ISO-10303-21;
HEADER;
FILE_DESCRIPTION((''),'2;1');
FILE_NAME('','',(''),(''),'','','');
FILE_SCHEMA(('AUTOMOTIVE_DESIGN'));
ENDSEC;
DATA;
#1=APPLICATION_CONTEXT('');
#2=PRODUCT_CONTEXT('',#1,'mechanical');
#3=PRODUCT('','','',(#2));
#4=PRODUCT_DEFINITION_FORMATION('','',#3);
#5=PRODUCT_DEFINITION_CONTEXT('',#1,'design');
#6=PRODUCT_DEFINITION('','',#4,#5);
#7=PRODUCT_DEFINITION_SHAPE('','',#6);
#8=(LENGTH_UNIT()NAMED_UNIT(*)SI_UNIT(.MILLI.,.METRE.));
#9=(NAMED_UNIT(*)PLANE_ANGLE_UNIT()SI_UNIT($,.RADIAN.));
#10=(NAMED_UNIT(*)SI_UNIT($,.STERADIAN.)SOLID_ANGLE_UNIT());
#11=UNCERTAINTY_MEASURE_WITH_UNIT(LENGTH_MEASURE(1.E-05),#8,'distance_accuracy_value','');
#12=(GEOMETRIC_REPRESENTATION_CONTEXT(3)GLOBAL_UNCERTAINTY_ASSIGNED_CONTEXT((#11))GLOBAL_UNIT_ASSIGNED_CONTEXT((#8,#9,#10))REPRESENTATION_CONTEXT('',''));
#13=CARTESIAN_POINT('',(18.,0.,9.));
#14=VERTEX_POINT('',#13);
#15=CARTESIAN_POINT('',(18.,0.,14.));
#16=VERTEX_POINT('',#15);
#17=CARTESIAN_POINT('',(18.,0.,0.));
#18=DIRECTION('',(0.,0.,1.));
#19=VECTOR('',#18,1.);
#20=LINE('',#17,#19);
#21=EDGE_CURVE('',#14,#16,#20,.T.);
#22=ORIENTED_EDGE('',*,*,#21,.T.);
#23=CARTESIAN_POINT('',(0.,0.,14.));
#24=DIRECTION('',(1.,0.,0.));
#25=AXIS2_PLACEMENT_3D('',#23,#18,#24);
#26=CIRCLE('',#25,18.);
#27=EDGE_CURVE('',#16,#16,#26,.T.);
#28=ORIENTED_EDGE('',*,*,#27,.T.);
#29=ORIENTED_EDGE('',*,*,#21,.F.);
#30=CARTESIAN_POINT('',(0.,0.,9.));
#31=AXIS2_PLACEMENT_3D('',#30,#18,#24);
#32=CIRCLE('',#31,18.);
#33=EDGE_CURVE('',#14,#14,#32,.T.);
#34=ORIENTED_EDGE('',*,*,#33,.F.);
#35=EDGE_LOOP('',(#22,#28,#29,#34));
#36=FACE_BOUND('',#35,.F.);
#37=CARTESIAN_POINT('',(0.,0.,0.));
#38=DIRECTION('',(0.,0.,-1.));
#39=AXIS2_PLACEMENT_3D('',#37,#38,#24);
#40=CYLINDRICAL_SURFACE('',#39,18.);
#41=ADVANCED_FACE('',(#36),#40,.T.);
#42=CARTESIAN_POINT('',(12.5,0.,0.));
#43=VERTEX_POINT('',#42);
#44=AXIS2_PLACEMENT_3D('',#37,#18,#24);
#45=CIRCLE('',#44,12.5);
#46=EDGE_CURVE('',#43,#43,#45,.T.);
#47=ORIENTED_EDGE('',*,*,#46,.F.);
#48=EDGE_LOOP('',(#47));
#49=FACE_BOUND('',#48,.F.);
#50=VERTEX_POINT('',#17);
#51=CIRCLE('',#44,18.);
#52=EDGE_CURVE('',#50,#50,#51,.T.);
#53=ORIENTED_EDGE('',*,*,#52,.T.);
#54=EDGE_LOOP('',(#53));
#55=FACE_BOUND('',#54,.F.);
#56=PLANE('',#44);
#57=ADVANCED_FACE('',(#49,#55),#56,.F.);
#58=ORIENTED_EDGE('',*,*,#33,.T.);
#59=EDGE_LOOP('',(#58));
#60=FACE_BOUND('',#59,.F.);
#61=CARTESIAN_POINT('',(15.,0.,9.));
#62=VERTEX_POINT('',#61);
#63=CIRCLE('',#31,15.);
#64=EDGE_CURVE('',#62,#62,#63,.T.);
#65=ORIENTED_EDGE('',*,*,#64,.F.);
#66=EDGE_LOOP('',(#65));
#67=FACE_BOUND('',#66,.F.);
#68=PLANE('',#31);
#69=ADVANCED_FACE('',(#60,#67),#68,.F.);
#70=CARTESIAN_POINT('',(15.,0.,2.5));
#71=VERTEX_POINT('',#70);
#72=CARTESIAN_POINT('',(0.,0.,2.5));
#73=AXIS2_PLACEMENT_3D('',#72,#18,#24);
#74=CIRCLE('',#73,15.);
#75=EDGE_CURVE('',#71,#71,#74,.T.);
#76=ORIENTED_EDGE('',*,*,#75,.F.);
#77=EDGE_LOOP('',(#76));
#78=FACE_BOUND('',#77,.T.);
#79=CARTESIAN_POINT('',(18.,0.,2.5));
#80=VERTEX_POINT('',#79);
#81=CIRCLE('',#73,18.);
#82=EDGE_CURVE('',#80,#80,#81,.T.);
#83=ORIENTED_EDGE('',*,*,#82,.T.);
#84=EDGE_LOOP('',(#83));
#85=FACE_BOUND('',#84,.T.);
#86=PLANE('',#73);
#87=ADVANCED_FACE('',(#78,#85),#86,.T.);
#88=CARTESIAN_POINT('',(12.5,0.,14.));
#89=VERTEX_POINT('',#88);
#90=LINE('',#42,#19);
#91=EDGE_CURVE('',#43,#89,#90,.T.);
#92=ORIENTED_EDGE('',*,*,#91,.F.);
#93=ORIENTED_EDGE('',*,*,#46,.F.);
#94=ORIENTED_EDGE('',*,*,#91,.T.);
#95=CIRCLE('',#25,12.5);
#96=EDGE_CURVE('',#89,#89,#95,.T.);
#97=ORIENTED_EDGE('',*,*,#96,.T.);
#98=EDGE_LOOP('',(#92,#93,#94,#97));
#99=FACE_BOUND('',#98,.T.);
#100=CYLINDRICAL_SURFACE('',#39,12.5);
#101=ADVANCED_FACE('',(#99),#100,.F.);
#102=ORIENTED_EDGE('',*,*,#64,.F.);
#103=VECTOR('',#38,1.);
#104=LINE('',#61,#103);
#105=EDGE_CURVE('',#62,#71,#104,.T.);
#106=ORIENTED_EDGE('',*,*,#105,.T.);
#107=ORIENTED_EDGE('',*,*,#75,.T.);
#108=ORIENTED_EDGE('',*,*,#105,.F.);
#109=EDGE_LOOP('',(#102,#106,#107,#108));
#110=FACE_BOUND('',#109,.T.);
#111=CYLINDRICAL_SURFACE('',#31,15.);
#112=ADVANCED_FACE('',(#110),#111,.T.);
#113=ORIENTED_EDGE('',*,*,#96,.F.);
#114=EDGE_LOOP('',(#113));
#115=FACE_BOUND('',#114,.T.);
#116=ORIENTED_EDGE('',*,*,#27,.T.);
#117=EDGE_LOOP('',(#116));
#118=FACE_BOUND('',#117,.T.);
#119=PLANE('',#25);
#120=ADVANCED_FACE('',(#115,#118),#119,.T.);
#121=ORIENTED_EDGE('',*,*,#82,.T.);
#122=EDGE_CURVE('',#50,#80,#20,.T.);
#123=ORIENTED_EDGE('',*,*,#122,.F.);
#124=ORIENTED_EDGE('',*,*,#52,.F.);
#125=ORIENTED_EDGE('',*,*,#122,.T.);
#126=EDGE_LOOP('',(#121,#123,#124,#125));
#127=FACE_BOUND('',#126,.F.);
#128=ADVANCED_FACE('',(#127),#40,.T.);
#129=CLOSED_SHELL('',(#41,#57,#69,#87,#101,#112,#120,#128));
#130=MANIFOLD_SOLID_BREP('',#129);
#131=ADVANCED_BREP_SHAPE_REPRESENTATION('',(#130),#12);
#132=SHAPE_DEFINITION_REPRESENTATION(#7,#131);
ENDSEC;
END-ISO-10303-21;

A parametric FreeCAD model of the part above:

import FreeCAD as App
import Part
import Sketcher

doc = App.newDocument("Part")
body = doc.addObject("PartDesign::Body", "Body")

# Sketch on XY plane
sketch1 = body.newObject("Sketcher::SketchObject", "Sketch")
sketch1.AttachmentSupport = (doc.getObject("XY_Plane"), [""])
sketch1.MapMode = "FlatFace"
sketch1.addGeometry(Part.Circle(App.Vector(0, 0, 0), App.Vector(0, 0, 1), 18), False)
sketch1.addGeometry(Part.Circle(App.Vector(0, 0, 0), App.Vector(0, 0, 1), 12.5), False)
sketch1.addConstraint(Sketcher.Constraint("Coincident", 0, 3, -1, 1))
sketch1.addConstraint(Sketcher.Constraint("Coincident", 1, 3, -1, 1))
sketch1.addConstraint(Sketcher.Constraint("Diameter", 0, 36.0))
sketch1.addConstraint(Sketcher.Constraint("Diameter", 1, 25.0))
pad1 = body.newObject("PartDesign::Pad", "Pad")
pad1.Profile = sketch1
pad1.Length = 14

# Sketch on XY plane
sketch2 = body.newObject("Sketcher::SketchObject", "Sketch001")
sketch2.AttachmentSupport = (doc.getObject("XY_Plane"), [""])
sketch2.MapMode = "FlatFace"
sketch2.AttachmentOffset = App.Placement(App.Vector(0, 0, 9), App.Rotation())
sketch2.addGeometry(Part.Circle(App.Vector(0, 0, 0), App.Vector(0, 0, 1), 18), False)
sketch2.addGeometry(Part.Circle(App.Vector(0, 0, 0), App.Vector(0, 0, 1), 15), False)
sketch2.addConstraint(Sketcher.Constraint("Coincident", 0, 3, -1, 1))
sketch2.addConstraint(Sketcher.Constraint("Coincident", 1, 3, -1, 1))
sketch2.addConstraint(Sketcher.Constraint("Diameter", 1, 30.0))
sketch2.addConstraint(Sketcher.Constraint("Diameter", 0, 36.0))
pocket1 = body.newObject("PartDesign::Pocket", "Pocket")
pocket1.Profile = sketch2
pocket1.Length = 6.5

doc.recompute()
